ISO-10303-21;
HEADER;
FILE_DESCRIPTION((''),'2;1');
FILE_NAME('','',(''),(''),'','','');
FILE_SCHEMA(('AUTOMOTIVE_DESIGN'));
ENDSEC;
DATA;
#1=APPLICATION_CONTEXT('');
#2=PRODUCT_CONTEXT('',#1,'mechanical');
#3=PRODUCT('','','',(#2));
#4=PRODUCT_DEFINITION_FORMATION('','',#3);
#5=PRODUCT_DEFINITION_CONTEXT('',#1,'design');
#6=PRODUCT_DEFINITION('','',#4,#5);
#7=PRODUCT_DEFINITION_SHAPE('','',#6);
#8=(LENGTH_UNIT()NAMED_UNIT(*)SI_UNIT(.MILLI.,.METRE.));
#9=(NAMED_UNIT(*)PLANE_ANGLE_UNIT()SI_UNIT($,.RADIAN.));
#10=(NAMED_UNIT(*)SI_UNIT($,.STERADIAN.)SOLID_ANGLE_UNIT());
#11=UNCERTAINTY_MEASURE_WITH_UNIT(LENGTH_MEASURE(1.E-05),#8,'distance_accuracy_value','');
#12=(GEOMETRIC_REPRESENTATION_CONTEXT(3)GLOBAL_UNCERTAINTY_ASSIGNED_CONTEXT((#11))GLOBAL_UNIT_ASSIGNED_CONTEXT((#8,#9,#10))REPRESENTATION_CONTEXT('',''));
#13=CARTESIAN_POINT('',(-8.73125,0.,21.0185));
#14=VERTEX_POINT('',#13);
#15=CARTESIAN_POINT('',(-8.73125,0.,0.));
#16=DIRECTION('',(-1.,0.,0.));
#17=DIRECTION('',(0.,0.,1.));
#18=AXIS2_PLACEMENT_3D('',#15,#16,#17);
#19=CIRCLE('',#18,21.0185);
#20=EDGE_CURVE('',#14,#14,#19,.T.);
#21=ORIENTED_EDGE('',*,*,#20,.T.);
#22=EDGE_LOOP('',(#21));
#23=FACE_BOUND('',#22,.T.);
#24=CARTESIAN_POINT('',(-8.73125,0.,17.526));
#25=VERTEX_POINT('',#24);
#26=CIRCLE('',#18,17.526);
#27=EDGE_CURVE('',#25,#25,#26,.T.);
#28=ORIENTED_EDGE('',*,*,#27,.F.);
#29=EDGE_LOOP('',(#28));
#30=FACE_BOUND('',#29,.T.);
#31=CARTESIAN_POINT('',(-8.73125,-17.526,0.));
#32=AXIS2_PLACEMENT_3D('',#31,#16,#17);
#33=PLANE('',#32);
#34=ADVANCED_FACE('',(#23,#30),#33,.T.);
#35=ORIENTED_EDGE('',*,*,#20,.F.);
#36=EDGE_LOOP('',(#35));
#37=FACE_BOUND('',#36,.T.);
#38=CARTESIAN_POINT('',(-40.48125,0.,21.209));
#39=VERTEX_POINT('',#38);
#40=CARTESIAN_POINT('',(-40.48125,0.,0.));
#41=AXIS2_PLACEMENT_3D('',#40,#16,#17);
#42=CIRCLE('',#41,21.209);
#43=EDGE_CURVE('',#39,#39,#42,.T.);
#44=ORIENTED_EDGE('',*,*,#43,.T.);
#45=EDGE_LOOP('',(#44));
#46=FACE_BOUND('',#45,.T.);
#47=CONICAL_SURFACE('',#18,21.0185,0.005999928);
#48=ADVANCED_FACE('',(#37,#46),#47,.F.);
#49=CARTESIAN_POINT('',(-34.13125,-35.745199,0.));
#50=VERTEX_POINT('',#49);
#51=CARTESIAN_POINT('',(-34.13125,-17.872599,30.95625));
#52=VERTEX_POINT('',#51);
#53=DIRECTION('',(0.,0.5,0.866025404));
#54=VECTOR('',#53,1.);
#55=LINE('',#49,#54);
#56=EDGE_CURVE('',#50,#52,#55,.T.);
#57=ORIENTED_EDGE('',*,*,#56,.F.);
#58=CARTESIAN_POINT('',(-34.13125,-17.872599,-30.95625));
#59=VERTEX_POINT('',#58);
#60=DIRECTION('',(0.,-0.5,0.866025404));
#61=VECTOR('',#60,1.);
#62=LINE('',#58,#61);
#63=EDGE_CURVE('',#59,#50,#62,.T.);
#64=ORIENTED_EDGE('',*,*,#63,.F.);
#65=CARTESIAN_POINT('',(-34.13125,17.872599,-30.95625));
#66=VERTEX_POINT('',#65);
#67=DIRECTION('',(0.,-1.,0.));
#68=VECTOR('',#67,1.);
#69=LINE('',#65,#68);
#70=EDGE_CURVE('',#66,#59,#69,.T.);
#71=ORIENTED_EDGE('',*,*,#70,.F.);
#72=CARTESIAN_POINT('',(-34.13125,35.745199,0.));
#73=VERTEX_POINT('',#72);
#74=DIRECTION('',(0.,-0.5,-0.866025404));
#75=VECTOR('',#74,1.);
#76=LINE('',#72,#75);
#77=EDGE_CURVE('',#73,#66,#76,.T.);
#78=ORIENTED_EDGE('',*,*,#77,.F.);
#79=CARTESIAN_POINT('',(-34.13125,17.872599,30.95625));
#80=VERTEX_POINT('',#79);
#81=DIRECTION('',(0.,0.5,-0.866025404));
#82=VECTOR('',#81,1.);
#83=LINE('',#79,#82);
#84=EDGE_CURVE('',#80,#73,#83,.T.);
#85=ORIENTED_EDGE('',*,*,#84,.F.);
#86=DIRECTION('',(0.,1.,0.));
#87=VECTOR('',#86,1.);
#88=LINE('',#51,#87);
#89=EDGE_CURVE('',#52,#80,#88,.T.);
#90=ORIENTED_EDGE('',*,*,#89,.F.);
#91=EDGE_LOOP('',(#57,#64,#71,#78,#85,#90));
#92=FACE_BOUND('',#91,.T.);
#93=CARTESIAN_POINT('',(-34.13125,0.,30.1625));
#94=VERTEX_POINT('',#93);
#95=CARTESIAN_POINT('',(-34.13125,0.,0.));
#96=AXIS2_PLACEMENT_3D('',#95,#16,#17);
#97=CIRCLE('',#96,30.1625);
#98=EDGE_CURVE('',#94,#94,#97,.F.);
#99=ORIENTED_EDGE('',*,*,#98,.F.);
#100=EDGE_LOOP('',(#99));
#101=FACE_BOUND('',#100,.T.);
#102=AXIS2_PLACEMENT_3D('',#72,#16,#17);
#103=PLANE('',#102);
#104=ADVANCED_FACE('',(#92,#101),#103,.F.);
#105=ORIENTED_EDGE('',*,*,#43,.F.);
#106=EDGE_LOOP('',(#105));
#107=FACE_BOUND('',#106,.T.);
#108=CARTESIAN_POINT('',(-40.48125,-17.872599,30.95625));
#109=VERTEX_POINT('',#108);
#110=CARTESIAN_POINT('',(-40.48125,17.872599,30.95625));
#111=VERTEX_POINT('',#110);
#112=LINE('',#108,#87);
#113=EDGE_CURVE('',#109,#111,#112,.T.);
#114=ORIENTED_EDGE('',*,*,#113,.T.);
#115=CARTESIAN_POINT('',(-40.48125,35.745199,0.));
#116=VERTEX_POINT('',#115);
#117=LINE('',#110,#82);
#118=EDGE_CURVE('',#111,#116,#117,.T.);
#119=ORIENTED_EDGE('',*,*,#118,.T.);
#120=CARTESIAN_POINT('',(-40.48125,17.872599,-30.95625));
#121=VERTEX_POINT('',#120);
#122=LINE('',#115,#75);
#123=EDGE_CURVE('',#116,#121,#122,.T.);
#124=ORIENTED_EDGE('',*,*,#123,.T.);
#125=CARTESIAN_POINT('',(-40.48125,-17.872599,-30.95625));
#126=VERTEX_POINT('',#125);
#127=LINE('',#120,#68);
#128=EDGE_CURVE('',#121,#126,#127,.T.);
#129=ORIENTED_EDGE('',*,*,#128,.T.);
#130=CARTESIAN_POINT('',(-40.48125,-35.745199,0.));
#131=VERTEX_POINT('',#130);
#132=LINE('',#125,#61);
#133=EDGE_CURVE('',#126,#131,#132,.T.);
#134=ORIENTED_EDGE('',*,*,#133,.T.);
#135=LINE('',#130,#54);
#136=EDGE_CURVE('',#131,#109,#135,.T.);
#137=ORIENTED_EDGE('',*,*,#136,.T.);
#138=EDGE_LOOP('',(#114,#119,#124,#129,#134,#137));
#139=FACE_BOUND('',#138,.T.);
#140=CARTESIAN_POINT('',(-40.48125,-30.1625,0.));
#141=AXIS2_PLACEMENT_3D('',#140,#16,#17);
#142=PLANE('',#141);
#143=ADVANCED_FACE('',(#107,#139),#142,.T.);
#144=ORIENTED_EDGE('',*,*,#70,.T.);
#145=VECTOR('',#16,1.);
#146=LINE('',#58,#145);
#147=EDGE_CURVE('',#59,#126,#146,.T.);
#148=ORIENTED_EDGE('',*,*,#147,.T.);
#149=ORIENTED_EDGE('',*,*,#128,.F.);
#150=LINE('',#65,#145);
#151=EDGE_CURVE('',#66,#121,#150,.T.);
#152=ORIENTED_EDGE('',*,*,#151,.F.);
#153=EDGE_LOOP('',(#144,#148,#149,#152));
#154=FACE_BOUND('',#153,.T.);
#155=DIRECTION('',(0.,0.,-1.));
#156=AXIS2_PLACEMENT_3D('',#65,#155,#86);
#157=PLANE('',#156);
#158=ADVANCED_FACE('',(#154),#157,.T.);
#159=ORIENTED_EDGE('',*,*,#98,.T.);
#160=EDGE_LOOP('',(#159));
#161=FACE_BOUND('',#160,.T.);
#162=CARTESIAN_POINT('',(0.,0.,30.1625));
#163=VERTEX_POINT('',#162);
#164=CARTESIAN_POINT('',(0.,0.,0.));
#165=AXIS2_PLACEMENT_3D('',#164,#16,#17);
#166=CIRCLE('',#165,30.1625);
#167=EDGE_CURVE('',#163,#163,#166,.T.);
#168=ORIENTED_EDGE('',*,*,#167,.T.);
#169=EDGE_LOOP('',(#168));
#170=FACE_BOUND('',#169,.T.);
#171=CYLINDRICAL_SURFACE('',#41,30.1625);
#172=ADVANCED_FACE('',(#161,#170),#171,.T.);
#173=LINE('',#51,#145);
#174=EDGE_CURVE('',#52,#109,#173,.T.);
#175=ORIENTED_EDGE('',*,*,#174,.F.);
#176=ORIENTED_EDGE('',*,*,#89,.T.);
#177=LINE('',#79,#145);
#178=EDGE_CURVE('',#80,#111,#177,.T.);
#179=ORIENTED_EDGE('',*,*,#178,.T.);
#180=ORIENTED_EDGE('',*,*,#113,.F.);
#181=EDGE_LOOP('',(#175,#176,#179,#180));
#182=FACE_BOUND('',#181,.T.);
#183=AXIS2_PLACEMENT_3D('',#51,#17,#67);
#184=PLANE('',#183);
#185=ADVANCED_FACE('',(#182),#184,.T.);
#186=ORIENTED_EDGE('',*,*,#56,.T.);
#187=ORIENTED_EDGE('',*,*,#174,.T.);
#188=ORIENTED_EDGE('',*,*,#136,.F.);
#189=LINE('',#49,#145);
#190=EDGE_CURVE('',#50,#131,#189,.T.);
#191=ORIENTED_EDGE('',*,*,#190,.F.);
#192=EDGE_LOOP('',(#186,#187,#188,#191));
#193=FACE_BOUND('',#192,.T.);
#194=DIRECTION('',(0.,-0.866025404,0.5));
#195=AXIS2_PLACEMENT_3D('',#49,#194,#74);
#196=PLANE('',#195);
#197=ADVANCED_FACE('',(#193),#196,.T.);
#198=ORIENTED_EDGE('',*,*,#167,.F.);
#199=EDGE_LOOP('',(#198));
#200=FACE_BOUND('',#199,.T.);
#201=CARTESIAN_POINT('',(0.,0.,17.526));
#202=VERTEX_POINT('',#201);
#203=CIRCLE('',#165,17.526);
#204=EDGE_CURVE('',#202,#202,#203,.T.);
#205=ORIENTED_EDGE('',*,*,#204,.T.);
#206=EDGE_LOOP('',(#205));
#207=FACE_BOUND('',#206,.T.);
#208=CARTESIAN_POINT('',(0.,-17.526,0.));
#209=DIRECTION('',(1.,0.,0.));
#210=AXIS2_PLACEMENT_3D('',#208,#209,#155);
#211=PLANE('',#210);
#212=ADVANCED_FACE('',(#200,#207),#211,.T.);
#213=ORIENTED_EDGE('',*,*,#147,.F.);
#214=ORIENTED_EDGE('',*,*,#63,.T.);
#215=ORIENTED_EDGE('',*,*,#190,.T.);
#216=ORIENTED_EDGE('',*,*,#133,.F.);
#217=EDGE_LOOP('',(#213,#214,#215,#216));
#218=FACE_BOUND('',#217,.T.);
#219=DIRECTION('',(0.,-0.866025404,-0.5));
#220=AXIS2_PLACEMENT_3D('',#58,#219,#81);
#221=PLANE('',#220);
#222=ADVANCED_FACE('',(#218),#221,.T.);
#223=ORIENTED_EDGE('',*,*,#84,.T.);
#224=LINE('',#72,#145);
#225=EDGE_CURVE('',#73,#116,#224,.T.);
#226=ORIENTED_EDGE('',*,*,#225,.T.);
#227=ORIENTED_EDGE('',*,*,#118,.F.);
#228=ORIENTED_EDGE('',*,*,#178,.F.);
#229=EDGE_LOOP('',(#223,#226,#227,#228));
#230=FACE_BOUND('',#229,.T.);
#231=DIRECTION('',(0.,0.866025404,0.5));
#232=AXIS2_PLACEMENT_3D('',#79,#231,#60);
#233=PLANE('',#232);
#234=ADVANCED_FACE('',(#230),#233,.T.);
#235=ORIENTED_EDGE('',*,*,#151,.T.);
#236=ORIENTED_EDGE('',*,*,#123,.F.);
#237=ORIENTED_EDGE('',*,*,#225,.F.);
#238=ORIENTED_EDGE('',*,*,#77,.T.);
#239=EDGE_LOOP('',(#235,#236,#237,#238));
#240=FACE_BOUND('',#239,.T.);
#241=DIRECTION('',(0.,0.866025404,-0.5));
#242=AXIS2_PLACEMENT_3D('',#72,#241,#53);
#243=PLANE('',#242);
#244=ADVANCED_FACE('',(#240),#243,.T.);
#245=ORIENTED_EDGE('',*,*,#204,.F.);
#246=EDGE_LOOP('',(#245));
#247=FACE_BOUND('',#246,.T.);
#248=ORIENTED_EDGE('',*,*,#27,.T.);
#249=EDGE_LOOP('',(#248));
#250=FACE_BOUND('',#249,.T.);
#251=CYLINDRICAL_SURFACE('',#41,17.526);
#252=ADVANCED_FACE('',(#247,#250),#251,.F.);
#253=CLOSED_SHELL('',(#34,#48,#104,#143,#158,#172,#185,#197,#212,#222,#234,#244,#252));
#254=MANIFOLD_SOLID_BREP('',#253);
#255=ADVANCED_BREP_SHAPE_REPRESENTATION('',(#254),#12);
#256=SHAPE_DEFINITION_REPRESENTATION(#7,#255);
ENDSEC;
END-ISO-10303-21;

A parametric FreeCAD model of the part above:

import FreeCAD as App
import Part
import Sketcher
from FreeCAD import Vector
Q = App.Units.Quantity


def add_polygon(sketch, points):
    """Adds a closed chain of lines whose ends are joined by coincident constraints."""
    first, n = sketch.GeometryCount, len(points)
    for a, b in zip(points, points[1:] + points[:1]):
        sketch.addGeometry(Part.LineSegment(App.Vector(*a, 0), App.Vector(*b, 0)), False)
    for i in range(n):
        sketch.addConstraint(Sketcher.Constraint("Coincident", first + i, 2, first + (i + 1) % n, 1))

doc = App.newDocument("Part")
body = doc.addObject("PartDesign::Body", "Body")

sketch1 = body.newObject("Sketcher::SketchObject", "Sketch")
sketch1.AttachmentSupport = (doc.getObject("XY_Plane"), [""])
sketch1.MapMode = "FlatFace"
add_polygon(sketch1, [(-40.5, -30.2), (0, -30.2), (0, -17.5), (-8.7, -17.5), (-8.7, -21), (-40.5, -21.2)])
sketch1.addConstraint([
    Sketcher.Constraint("Horizontal", 0),
    Sketcher.Constraint("Vertical", 1),
    Sketcher.Constraint("Horizontal", 2),
    Sketcher.Constraint("Vertical", 3),
    Sketcher.Constraint("Vertical", 5),
    Sketcher.Constraint("PointOnObject", 0, 2, -2),
    Sketcher.Constraint("DistanceX", 0, 1, 0, 2, Q("1.59375 in")),
    Sketcher.Constraint("DistanceX", 2, 2, 2, 1, Q("0.34375 in")),
    Sketcher.Constraint("DistanceY", 1, 2, -1, 1, Q("0.69 in")),
    Sketcher.Constraint("DistanceY", 0, 2, 3, 2, Q("0.36 in")),
    Sketcher.Constraint("DistanceY", 1, 1, 1, 2, Q("0.4975 in")),
    Sketcher.Constraint("DistanceY", 5, 2, 5, 1, Q("0.3525 in")),
])
revolution = body.newObject("PartDesign::Revolution", "Revolution")
revolution.Profile = sketch1
revolution.ReferenceAxis = (sketch1, ["H_Axis"])
revolution.Angle = 360

sketch2 = body.newObject("Sketcher::SketchObject", "Sketch001")
sketch2.AttachmentSupport = (doc.getObject("YZ_Plane"), [""])
sketch2.MapMode = "FlatFace"
sketch2.AttachmentOffset = App.Placement(Vector(0, 0, -1.59375 * 25.4), App.Rotation())
add_polygon(sketch2, [(36, 0), (18, -31), (-18, -31), (-36, 0), (-18, 31), (18, 31)])
sketch2.addGeometry(Part.Circle(Vector(0, 0, 0), Vector(0, 0, 1), 21), False)
sketch2.addConstraint([
    Sketcher.Constraint("Horizontal", 1),
    Sketcher.Constraint("Horizontal", 4),
    Sketcher.Constraint("Coincident", 6, 3, -1, 1),
    Sketcher.Constraint("Symmetric", 0, 2, 3, 2, -1, 1),
    Sketcher.Constraint("Symmetric", 2, 2, 5, 2, -1, 1),
    Sketcher.Constraint("PointOnObject", 2, 2, -1),
    Sketcher.Constraint("Parallel", 2, 5),
    Sketcher.Constraint("Vertical", 1, 2, 3, 2),
    Sketcher.Constraint("Diameter", 6, Q("1.67 in")),
    Sketcher.Constraint("Angle", 0, Q("-120 deg")),
    Sketcher.Constraint("DistanceY", 0, 2, -1, 1, Q("1.21875 in")),
    Sketcher.Constraint("DistanceX", 1, 2, 1, 1, 35.745199),
])
pad1 = body.newObject("PartDesign::Pad", "Pad")
pad1.Profile = sketch2
pad1.Length = Q("0.25 in")

doc.recompute()
